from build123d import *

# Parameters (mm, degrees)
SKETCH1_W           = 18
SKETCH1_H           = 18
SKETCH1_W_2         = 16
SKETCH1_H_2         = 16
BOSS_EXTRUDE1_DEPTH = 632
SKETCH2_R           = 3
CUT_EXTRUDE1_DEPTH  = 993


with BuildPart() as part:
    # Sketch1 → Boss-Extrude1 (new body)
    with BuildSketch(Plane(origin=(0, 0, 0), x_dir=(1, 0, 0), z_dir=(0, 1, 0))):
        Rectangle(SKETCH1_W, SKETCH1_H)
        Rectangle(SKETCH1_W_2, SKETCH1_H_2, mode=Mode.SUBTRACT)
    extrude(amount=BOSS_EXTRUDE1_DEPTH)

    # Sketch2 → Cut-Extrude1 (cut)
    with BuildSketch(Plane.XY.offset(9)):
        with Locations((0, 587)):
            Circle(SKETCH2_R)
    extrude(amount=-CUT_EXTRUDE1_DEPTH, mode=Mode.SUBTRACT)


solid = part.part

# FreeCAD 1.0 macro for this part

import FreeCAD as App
import Part
import Sketcher
Q = App.Units.Quantity


def add_polygon(sketch, points):
    """Adds a closed chain of lines whose ends are joined by coincident constraints."""
    first, n = sketch.GeometryCount, len(points)
    for a, b in zip(points, points[1:] + points[:1]):
        sketch.addGeometry(Part.LineSegment(App.Vector(*a, 0), App.Vector(*b, 0)), False)
    for i in range(n):
        sketch.addConstraint(Sketcher.Constraint("Coincident", first + i, 2, first + (i + 1) % n, 1))

doc = App.newDocument("Part")
body = doc.addObject("PartDesign::Body", "Body")

sketch1 = doc.addObject("Sketcher::SketchObject", "Sketch")
body.addObject(sketch1)
sketch1.AttachmentSupport = (doc.XZ_Plane, [""])
sketch1.MapMode = "FlatFace"
add_polygon(sketch1, [(-9, -9), (-9, 9), (9, 9), (9, -9)])
add_polygon(sketch1, [(8, 8), (-8, 8), (-8, -8), (8, -8)])
sketch1.addConstraint([
    Sketcher.Constraint("Vertical", 0),
    Sketcher.Constraint("Horizontal", 1),
    Sketcher.Constraint("Vertical", 2),
    Sketcher.Constraint("Horizontal", 3),
    Sketcher.Constraint("Horizontal", 4),
    Sketcher.Constraint("Vertical", 5),
    Sketcher.Constraint("Horizontal", 6),
    Sketcher.Constraint("Vertical", 7),
    Sketcher.Constraint("Symmetric", 0, 2, 2, 2, -1, 1),
    Sketcher.Constraint("Symmetric", 4, 2, 6, 2, -1, 1),
    Sketcher.Constraint("Equal", 3, 0),
    Sketcher.Constraint("Equal", 6, 5),
    Sketcher.Constraint("DistanceX", 1, 1, 1, 2, Q("18 mm")),
    Sketcher.Constraint("DistanceX", 4, 2, 4, 1, Q("16 mm")),
])
pad1 = doc.addObject("PartDesign::Pad", "Pad")
body.addObject(pad1)
pad1.Profile = sketch1
pad1.Length = 632
pad1.Reversed = True

sketch2 = doc.addObject("Sketcher::SketchObject", "Sketch001")
body.addObject(sketch2)
sketch2.AttachmentSupport = (doc.XY_Plane, [""])
sketch2.MapMode = "FlatFace"
sketch2.AttachmentOffset = App.Placement(App.Vector(0, 0, 9), App.Rotation())
sketch2.addGeometry(Part.Circle(App.Vector(0, 587, 0), App.Vector(0, 0, 1), 3), False)
sketch2.addConstraint([
    Sketcher.Constraint("PointOnObject", 0, 3, -2),
    Sketcher.Constraint("Diameter", 0, Q("6 mm")),
    Sketcher.Constraint("DistanceY", -1, 1, 0, 3, Q("587 mm")),
])
pocket1 = doc.addObject("PartDesign::Pocket", "Pocket")
body.addObject(pocket1)
pocket1.Profile = sketch2
pocket1.Length = 993

doc.recompute()
